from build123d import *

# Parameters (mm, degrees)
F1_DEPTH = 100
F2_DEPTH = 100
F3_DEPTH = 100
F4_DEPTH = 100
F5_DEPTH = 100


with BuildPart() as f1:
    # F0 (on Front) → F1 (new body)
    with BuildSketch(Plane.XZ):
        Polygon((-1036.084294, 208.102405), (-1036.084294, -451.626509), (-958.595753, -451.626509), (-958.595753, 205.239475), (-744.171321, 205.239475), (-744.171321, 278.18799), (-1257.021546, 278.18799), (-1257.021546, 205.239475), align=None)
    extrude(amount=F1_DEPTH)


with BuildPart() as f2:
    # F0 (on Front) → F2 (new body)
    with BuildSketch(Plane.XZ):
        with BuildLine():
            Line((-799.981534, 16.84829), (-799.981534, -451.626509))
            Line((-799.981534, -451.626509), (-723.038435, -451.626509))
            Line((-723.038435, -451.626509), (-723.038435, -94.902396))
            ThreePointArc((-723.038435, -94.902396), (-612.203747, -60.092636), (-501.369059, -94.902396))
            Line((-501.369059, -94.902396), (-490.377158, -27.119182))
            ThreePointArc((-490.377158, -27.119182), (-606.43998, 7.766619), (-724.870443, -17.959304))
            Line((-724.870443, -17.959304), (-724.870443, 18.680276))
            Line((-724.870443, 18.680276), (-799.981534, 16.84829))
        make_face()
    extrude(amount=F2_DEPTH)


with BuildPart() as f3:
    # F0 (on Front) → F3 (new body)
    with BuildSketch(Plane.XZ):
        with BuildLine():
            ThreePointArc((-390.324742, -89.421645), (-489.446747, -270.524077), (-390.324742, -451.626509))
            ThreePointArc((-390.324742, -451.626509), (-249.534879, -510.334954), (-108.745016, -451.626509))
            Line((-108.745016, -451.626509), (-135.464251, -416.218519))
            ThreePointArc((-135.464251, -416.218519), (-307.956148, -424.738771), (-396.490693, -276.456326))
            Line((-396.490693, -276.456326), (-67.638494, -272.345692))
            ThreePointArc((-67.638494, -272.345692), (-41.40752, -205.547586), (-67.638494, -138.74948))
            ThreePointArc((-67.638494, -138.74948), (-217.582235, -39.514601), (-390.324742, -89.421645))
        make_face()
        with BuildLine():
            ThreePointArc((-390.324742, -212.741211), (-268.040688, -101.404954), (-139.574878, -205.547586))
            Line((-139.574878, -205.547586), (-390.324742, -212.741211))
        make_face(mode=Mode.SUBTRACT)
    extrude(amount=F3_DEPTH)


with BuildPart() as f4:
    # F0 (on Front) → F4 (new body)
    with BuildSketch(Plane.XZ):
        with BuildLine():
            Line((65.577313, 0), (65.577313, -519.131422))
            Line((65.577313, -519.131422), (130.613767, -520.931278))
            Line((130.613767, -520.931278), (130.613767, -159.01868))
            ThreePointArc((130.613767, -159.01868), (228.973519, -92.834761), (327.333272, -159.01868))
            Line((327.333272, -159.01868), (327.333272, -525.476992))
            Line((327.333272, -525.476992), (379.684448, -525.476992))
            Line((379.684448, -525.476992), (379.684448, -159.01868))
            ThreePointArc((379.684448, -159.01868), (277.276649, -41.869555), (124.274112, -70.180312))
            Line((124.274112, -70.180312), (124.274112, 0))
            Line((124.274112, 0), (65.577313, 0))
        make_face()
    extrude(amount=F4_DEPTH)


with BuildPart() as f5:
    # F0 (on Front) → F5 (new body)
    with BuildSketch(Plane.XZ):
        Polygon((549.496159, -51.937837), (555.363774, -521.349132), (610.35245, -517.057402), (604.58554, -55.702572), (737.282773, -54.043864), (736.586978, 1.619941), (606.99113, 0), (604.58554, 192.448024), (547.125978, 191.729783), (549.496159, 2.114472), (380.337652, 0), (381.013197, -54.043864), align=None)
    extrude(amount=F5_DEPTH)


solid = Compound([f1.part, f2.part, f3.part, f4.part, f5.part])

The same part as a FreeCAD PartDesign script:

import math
import FreeCAD as App
import Part
import Sketcher

V = App.Vector
Q = App.Units.Quantity

doc = App.newDocument("Part")
body = doc.addObject("PartDesign::Body", "Body")

# Sketch on XZ plane
sketch1 = doc.addObject("Sketcher::SketchObject", "Sketch")
body.addObject(sketch1)
sketch1.AttachmentSupport = (doc.XZ_Plane, [""])
sketch1.MapMode = "FlatFace"
sketch1.addGeometry([
    Part.LineSegment(V(-1036.084294, 208.102405, 0), V(-1036.084294, -451.626509, 0)),  # 0
    Part.LineSegment(V(-1036.084294, -451.626509, 0), V(-958.595753, -451.626509, 0)),  # 1
    Part.LineSegment(V(-958.595753, -451.626509, 0), V(-958.595753, 205.239475, 0)),  # 2
    Part.LineSegment(V(-958.595753, 205.239475, 0), V(-744.171321, 205.239475, 0)),  # 3
    Part.LineSegment(V(-744.171321, 205.239475, 0), V(-744.171321, 278.18799, 0)),  # 4
    Part.LineSegment(V(-744.171321, 278.18799, 0), V(-1257.021546, 278.18799, 0)),  # 5
    Part.LineSegment(V(-1257.021546, 278.18799, 0), V(-1257.021546, 205.239475, 0)),  # 6
    Part.LineSegment(V(-1257.021546, 205.239475, 0), V(-1036.084294, 208.102405, 0)),  # 7
], False)
sketch1.addConstraint([
    Sketcher.Constraint("Coincident", 0, 2, 1, 1),
    Sketcher.Constraint("Coincident", 1, 2, 2, 1),
    Sketcher.Constraint("Coincident", 2, 2, 3, 1),
    Sketcher.Constraint("Coincident", 3, 2, 4, 1),
    Sketcher.Constraint("Coincident", 4, 2, 5, 1),
    Sketcher.Constraint("Coincident", 5, 2, 6, 1),
    Sketcher.Constraint("Coincident", 6, 2, 7, 1),
    Sketcher.Constraint("Coincident", 7, 2, 0, 1),
    Sketcher.Constraint("Vertical", 0),
    Sketcher.Constraint("Horizontal", 1),
    Sketcher.Constraint("Vertical", 2),
    Sketcher.Constraint("Horizontal", 3),
    Sketcher.Constraint("Vertical", 4),
    Sketcher.Constraint("Horizontal", 5),
    Sketcher.Constraint("Vertical", 6),
    Sketcher.Constraint("Horizontal", 3, 2, 6, 2),
    Sketcher.Constraint("Distance", 7, Q("220.9558 mm")),
    Sketcher.Constraint("DistanceX", 1, 1, 1, 2, Q("77.488541 mm")),
    Sketcher.Constraint("DistanceX", 3, 1, 3, 2, Q("214.424432 mm")),
    Sketcher.Constraint("DistanceY", 1, 2, 4, 2, Q("729.814499 mm")),
    Sketcher.Constraint("DistanceX", 5, 2, 5, 1, Q("512.850225 mm")),
    Sketcher.Constraint("DistanceY", 0, 2, 0, 1, Q("659.728914 mm")),
    Sketcher.Constraint("DistanceY", 0, 2, -1, 1, Q("451.626509 mm")),
    Sketcher.Constraint("DistanceX", 3, 2, -1, 1, Q("744.171321 mm")),
])
pad1 = doc.addObject("PartDesign::Pad", "Pad")
body.addObject(pad1)
pad1.Profile = sketch1
pad1.Length = 100
body2 = doc.addObject("PartDesign::Body", "Body001")

# Sketch on XZ plane
sketch2 = doc.addObject("Sketcher::SketchObject", "Sketch001")
body2.addObject(sketch2)
sketch2.AttachmentSupport = (doc.getObject("XZ_Plane001"), [""])
sketch2.MapMode = "FlatFace"
sketch2.addGeometry([
    Part.LineSegment(V(-800, 17, 0), V(-800, -452, 0)),  # 0
    Part.LineSegment(V(-800, -452, 0), V(-723, -452, 0)),  # 1
    Part.LineSegment(V(-723, -452, 0), V(-723, -95, 0)),  # 2
    Part.ArcOfCircle(Part.Circle(V(-612, -254, 0), V(0, 0, 1), 194), math.radians(55), math.radians(125)),  # 3
    Part.LineSegment(V(-501, -95, 0), V(-490, -27, 0)),  # 4
    Part.ArcOfCircle(Part.Circle(V(-616, -234, 0), V(0, 0, 1), 242), math.radians(59), math.radians(117)),  # 5
    Part.LineSegment(V(-725, -18, 0), V(-725, 19, 0)),  # 6
    Part.LineSegment(V(-725, 19, 0), V(-800, 17, 0)),  # 7
], False)
sketch2.addConstraint([
    Sketcher.Constraint("Coincident", 0, 2, 1, 1),
    Sketcher.Constraint("Coincident", 1, 2, 2, 1),
    Sketcher.Constraint("Coincident", 2, 2, 3, 2),
    Sketcher.Constraint("Coincident", 3, 1, 4, 1),
    Sketcher.Constraint("Coincident", 4, 2, 5, 1),
    Sketcher.Constraint("Coincident", 5, 2, 6, 1),
    Sketcher.Constraint("Coincident", 6, 2, 7, 1),
    Sketcher.Constraint("Coincident", 7, 2, 0, 1),
    Sketcher.Constraint("Vertical", 0),
    Sketcher.Constraint("Horizontal", 1),
    Sketcher.Constraint("Vertical", 2),
    Sketcher.Constraint("Vertical", 6),
    Sketcher.Constraint("Horizontal", 2, 2, 3, 1),
    Sketcher.Constraint("Radius", 3, Q("193.854359 mm")),
    Sketcher.Constraint("DistanceX", 1, 1, 1, 2, Q("76.943099 mm")),
    Sketcher.Constraint("DistanceY", 0, 2, 0, 1, Q("468.474799 mm")),
    Sketcher.Constraint("Radius", 5, Q("242.138053 mm")),
    Sketcher.Constraint("DistanceY", 6, 1, 6, 2, Q("36.63958 mm")),
    Sketcher.Constraint("DistanceY", 0, 2, 5, 3, Q("217.4396 mm")),
    Sketcher.Constraint("DistanceY", 3, 3, 2, 2, Q("159.044599 mm")),
    Sketcher.Constraint("DistanceX", 3, 1, 4, 2, Q("10.991901 mm")),
    Sketcher.Constraint("Distance", 4, Q("68.668668 mm")),
    Sketcher.Constraint("Distance", 7, Q("75.133429 mm")),
    Sketcher.Constraint("DistanceY", 2, 1, 2, 2, Q("356.724113 mm")),
    Sketcher.Constraint("DistanceY", 5, 3, -1, 1, Q("234.186909 mm")),
    Sketcher.Constraint("DistanceX", 4, 2, -1, 1, Q("490.377158 mm")),
])
pad2 = doc.addObject("PartDesign::Pad", "Pad001")
body2.addObject(pad2)
pad2.Profile = sketch2
pad2.Length = 100
body3 = doc.addObject("PartDesign::Body", "Body002")

# Sketch on XZ plane
sketch3 = doc.addObject("Sketcher::SketchObject", "Sketch002")
body3.addObject(sketch3)
sketch3.AttachmentSupport = (doc.getObject("XZ_Plane002"), [""])
sketch3.MapMode = "FlatFace"
sketch3.addGeometry([
    Part.ArcOfCircle(Part.Circle(V(-274.442709, -270.524077, 0), V(0, 0, 1), 215.004038), math.radians(122.613963), math.radians(237.386037)),  # 0
    Part.ArcOfCircle(Part.Circle(V(-249.534879, -312.165278, 0), V(0, 0, 1), 198.169676), math.radians(-135.271629), math.radians(-44.728371)),  # 1
    Part.LineSegment(V(-108.745016, -451.626509, 0), V(-135.464251, -416.218519, 0)),  # 2
    Part.ArcOfCircle(Part.Circle(V(-228.80195, -276.906669, 0), V(0, 0, 1), 167.689348), math.radians(179.846127), math.radians(303.821733)),  # 3
    Part.LineSegment(V(-396.490693, -276.456326, 0), V(-67.638494, -272.345692, 0)),  # 4
    Part.ArcOfCircle(Part.Circle(V(-139.574881, -205.547586, 0), V(0, 0, 1), 98.167361), math.radians(-42.878918), math.radians(42.878918)),  # 5
    Part.ArcOfCircle(Part.Circle(V(-249.963583, -251.342579, 0), V(0, 0, 1), 214.288693), math.radians(31.697004), math.radians(130.920381)),  # 6
    Part.LineSegment(V(-139.574878, -205.547586, 0), V(-390.324742, -212.741211, 0)),  # 7
    Part.ArcOfCircle(Part.Circle(V(-264.402468, -228.223231, 0), V(0, 0, 1), 126.870454), math.radians(10.295835), math.radians(172.990717)),  # 8
], False)
sketch3.addConstraint([
    Sketcher.Constraint("Coincident", 0, 2, 1, 1),
    Sketcher.Constraint("Coincident", 1, 2, 2, 1),
    Sketcher.Constraint("Coincident", 2, 2, 3, 2),
    Sketcher.Constraint("Coincident", 3, 1, 4, 1),
    Sketcher.Constraint("Coincident", 4, 2, 5, 1),
    Sketcher.Constraint("Coincident", 5, 2, 6, 1),
    Sketcher.Constraint("Coincident", 6, 2, 0, 1),
    Sketcher.Constraint("Coincident", 7, 1, 8, 1),
    Sketcher.Constraint("Coincident", 8, 2, 7, 2),
    Sketcher.Constraint("Coincident", 7, 1, 5, 3),
    Sketcher.Constraint("Radius", 0, Q("215.004038 mm")),
    Sketcher.Constraint("Radius", 3, Q("167.689348 mm")),
    Sketcher.Constraint("Radius", 5, Q("98.167361 mm")),
    Sketcher.Constraint("DistanceX", 1, 3, 5, 3, Q("109.959998 mm")),
    Sketcher.Constraint("Radius", 1, Q("198.169676 mm")),
    Sketcher.Constraint("Radius", 6, Q("214.288693 mm")),
    Sketcher.Constraint("Radius", 8, Q("126.870454 mm")),
    Sketcher.Constraint("DistanceY", 1, 3, 0, 3, Q("41.641201 mm")),
    Sketcher.Constraint("DistanceY", 0, 3, 6, 3, Q("19.181498 mm")),
    Sketcher.Constraint("DistanceX", 3, 3, 2, 2, Q("93.337699 mm")),
    Sketcher.Constraint("DistanceY", 6, 3, 5, 2, Q("112.593099 mm")),
    Sketcher.Constraint("Distance", 4, Q("328.877889 mm")),
    Sketcher.Constraint("Distance", 7, Q("250.85303 mm")),
    Sketcher.Constraint("DistanceX", 0, 3, -1, 1, Q("274.442709 mm")),
    Sketcher.Constraint("DistanceX", 1, 3, -1, 1, Q("249.534879 mm")),
    Sketcher.Constraint("DistanceY", 1, 3, -1, 1, Q("312.165278 mm")),
    Sketcher.Constraint("DistanceX", 3, 3, -1, 1, Q("228.80195 mm")),
    Sketcher.Constraint("DistanceY", 3, 3, -1, 1, Q("276.906669 mm")),
    Sketcher.Constraint("DistanceY", 8, 3, -1, 1, Q("228.223231 mm")),
    Sketcher.Constraint("DistanceY", 1, 2, -1, 1, Q("451.626509 mm")),
    Sketcher.Constraint("DistanceY", 4, 2, -1, 1, Q("272.345692 mm")),
    Sketcher.Constraint("DistanceY", 0, 3, 5, 3, Q("64.976491 mm")),
])
pad3 = doc.addObject("PartDesign::Pad", "Pad002")
body3.addObject(pad3)
pad3.Profile = sketch3
pad3.Length = 100
body4 = doc.addObject("PartDesign::Body", "Body003")

# Sketch on XZ plane
sketch4 = doc.addObject("Sketcher::SketchObject", "Sketch003")
body4.addObject(sketch4)
sketch4.AttachmentSupport = (doc.getObject("XZ_Plane003"), [""])
sketch4.MapMode = "FlatFace"
sketch4.addGeometry([
    Part.LineSegment(V(66, 0, 0), V(66, -519, 0)),  # 0
    Part.LineSegment(V(66, -519, 0), V(131, -521, 0)),  # 1
    Part.LineSegment(V(131, -521, 0), V(131, -159, 0)),  # 2
    Part.ArcOfCircle(Part.Circle(V(229, -199, 0), V(0, 0, 1), 106), math.radians(22), math.radians(158)),  # 3
    Part.LineSegment(V(327, -159, 0), V(327, -525, 0)),  # 4
    Part.LineSegment(V(327, -525, 0), V(380, -525, 0)),  # 5
    Part.LineSegment(V(380, -525, 0), V(380, -159, 0)),  # 6
    Part.ArcOfCircle(Part.Circle(V(226, -190, 0), V(0, 0, 1), 157), math.radians(11), math.radians(130)),  # 7
    Part.LineSegment(V(124, -70, 0), V(124, 0, 0)),  # 8
    Part.LineSegment(V(124, 0, 0), V(66, 0, 0)),  # 9
], False)
sketch4.addConstraint([
    Sketcher.Constraint("Coincident", 0, 2, 1, 1),
    Sketcher.Constraint("Coincident", 1, 2, 2, 1),
    Sketcher.Constraint("Coincident", 2, 2, 3, 2),
    Sketcher.Constraint("Coincident", 3, 1, 4, 1),
    Sketcher.Constraint("Coincident", 4, 2, 5, 1),
    Sketcher.Constraint("Coincident", 5, 2, 6, 1),
    Sketcher.Constraint("Coincident", 6, 2, 7, 1),
    Sketcher.Constraint("Coincident", 7, 2, 8, 1),
    Sketcher.Constraint("Coincident", 8, 2, 9, 1),
    Sketcher.Constraint("Coincident", 9, 2, 0, 1),
    Sketcher.Constraint("Vertical", 0),
    Sketcher.Constraint("Vertical", 2),
    Sketcher.Constraint("Vertical", 4),
    Sketcher.Constraint("Horizontal", 5),
    Sketcher.Constraint("Vertical", 6),
    Sketcher.Constraint("Vertical", 8),
    Sketcher.Constraint("Horizontal", 9),
    Sketcher.Constraint("PointOnObject", 8, 2, -1),
    Sketcher.Constraint("Horizontal", 2, 2, 3, 1),
    Sketcher.Constraint("Horizontal", 3, 1, 6, 2),
    Sketcher.Constraint("Radius", 7, Q("157.208101 mm")),
    Sketcher.Constraint("Radius", 3, Q("106.18102 mm")),
    Sketcher.Constraint("DistanceX", 9, 2, 9, 1, Q("58.696799 mm")),
    Sketcher.Constraint("DistanceY", 2, 1, 2, 2, Q("361.912598 mm")),
    Sketcher.Constraint("DistanceY", 0, 2, 0, 1, Q("519.131422 mm")),
    Sketcher.Constraint("DistanceY", 4, 2, 4, 1, Q("366.458312 mm")),
    Sketcher.Constraint("DistanceY", 8, 1, 8, 2, Q("70.180312 mm")),
    Sketcher.Constraint("DistanceY", 3, 3, 2, 2, Q("39.997101 mm")),
    Sketcher.Constraint("DistanceX", 7, 3, 5, 2, Q("154.053899 mm")),
    Sketcher.Constraint("DistanceX", 5, 1, 5, 2, Q("52.351176 mm")),
    Sketcher.Constraint("DistanceX", -1, 1, 3, 3, Q("228.97352 mm")),
    Sketcher.Constraint("DistanceY", 3, 3, -1, 1, Q("199.015781 mm")),
])
pad4 = doc.addObject("PartDesign::Pad", "Pad003")
body4.addObject(pad4)
pad4.Profile = sketch4
pad4.Length = 100
body5 = doc.addObject("PartDesign::Body", "Body004")

# Sketch on XZ plane
sketch5 = doc.addObject("Sketcher::SketchObject", "Sketch004")
body5.addObject(sketch5)
sketch5.AttachmentSupport = (doc.getObject("XZ_Plane004"), [""])
sketch5.MapMode = "FlatFace"
sketch5.addGeometry([
    Part.LineSegment(V(549, -52, 0), V(555, -521, 0)),  # 0
    Part.LineSegment(V(555, -521, 0), V(610, -517, 0)),  # 1
    Part.LineSegment(V(610, -517, 0), V(605, -56, 0)),  # 2
    Part.LineSegment(V(605, -56, 0), V(737, -54, 0)),  # 3
    Part.LineSegment(V(737, -54, 0), V(737, 2, 0)),  # 4
    Part.LineSegment(V(737, 2, 0), V(607, 0, 0)),  # 5
    Part.LineSegment(V(607, 0, 0), V(605, 192, 0)),  # 6
    Part.LineSegment(V(605, 192, 0), V(547, 192, 0)),  # 7
    Part.LineSegment(V(547, 192, 0), V(549, 2, 0)),  # 8
    Part.LineSegment(V(549, 2, 0), V(380, 0, 0)),  # 9
    Part.LineSegment(V(380, 0, 0), V(381, -54, 0)),  # 10
    Part.LineSegment(V(381, -54, 0), V(549, -52, 0)),  # 11
], False)
sketch5.addConstraint([
    Sketcher.Constraint("Coincident", 0, 2, 1, 1),
    Sketcher.Constraint("Coincident", 1, 2, 2, 1),
    Sketcher.Constraint("Coincident", 2, 2, 3, 1),
    Sketcher.Constraint("Coincident", 3, 2, 4, 1),
    Sketcher.Constraint("Coincident", 4, 2, 5, 1),
    Sketcher.Constraint("Coincident", 5, 2, 6, 1),
    Sketcher.Constraint("Coincident", 6, 2, 7, 1),
    Sketcher.Constraint("Coincident", 7, 2, 8, 1),
    Sketcher.Constraint("Coincident", 8, 2, 9, 1),
    Sketcher.Constraint("Coincident", 9, 2, 10, 1),
    Sketcher.Constraint("Coincident", 10, 2, 11, 1),
    Sketcher.Constraint("Coincident", 11, 2, 0, 1),
    Sketcher.Constraint("PointOnObject", 5, 2, -1),
    Sketcher.Constraint("PointOnObject", 9, 2, -1),
    Sketcher.Constraint("Parallel", 0, 2),
    Sketcher.Constraint("Perpendicular", 2, 3),
    Sketcher.Constraint("Perpendicular", 3, 4),
    Sketcher.Constraint("Perpendicular", 4, 5),
    Sketcher.Constraint("Perpendicular", 5, 6),
    Sketcher.Constraint("Perpendicular", 6, 7),
    Sketcher.Constraint("Perpendicular", 7, 8),
    Sketcher.Constraint("Perpendicular", 8, 9),
    Sketcher.Constraint("Perpendicular", 9, 10),
    Sketcher.Constraint("Perpendicular", 10, 11),
    Sketcher.Constraint("Horizontal", 3, 2, 10, 2),
    Sketcher.Constraint("Vertical", 2, 2, 6, 2),
    Sketcher.Constraint("Vertical", 8, 2, 11, 2),
    Sketcher.Constraint("DistanceX", 0, 2, 3, 2, Q("181.918999 mm")),
    Sketcher.Constraint("DistanceX", 7, 2, 4, 2, Q("189.461 mm")),
    Sketcher.Constraint("Distance", 1, Q("55.155901 mm")),
    Sketcher.Constraint("Distance", 3, Q("132.707599 mm")),
    Sketcher.Constraint("DistanceY", 1, 2, -1, 1, Q("517.057402 mm")),
    Sketcher.Constraint("Distance", 2, Q("461.390872 mm")),
    Sketcher.Constraint("Distance", 6, Q("192.463058 mm")),
    Sketcher.Constraint("Distance", 9, Q("169.171722 mm")),
    Sketcher.Constraint("DistanceX", -1, 1, 1, 2, Q("610.35245 mm")),
])
pad5 = doc.addObject("PartDesign::Pad", "Pad004")
body5.addObject(pad5)
pad5.Profile = sketch5
pad5.Length = 100

doc.recompute()
